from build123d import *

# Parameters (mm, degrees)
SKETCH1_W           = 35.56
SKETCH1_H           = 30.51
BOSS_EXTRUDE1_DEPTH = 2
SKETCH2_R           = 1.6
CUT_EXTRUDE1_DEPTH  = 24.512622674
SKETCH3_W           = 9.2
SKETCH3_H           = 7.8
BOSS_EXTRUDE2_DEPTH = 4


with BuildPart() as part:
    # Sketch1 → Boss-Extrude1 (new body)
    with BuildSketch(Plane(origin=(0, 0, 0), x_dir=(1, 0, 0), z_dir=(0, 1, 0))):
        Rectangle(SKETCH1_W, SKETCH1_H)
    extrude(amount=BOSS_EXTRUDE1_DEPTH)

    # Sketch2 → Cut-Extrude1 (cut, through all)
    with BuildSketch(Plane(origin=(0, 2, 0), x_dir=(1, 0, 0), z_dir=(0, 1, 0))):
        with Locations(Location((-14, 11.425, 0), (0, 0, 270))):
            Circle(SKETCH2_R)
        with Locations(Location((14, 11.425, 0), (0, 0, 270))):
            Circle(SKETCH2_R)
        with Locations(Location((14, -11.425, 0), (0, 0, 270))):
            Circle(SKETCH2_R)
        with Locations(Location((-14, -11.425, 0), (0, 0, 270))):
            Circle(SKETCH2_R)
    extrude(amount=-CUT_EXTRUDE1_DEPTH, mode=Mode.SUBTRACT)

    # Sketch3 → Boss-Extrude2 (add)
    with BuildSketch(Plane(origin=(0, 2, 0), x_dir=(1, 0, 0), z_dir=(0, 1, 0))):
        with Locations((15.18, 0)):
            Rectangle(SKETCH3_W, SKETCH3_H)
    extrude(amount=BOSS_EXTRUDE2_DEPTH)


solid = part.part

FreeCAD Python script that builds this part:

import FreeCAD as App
import Part
import Sketcher

V = App.Vector
Q = App.Units.Quantity


def add_polygon(sketch, points):
    """Adds a closed chain of lines whose ends are joined by coincident constraints."""
    first, n = sketch.GeometryCount, len(points)
    for a, b in zip(points, points[1:] + points[:1]):
        sketch.addGeometry(Part.LineSegment(App.Vector(*a, 0), App.Vector(*b, 0)), False)
    for i in range(n):
        sketch.addConstraint(Sketcher.Constraint("Coincident", first + i, 2, first + (i + 1) % n, 1))

doc = App.newDocument("Part")
body = doc.addObject("PartDesign::Body", "Body")

sketch1 = body.newObject("Sketcher::SketchObject", "Sketch")
sketch1.AttachmentSupport = (doc.getObject("XZ_Plane"), [""])
sketch1.MapMode = "FlatFace"
add_polygon(sketch1, [(-17.78, -15.255), (-17.78, 15.255), (17.78, 15.255), (17.78, -15.255)])
sketch1.addConstraint(Sketcher.Constraint("Vertical", 0))
sketch1.addConstraint(Sketcher.Constraint("Horizontal", 1))
sketch1.addConstraint(Sketcher.Constraint("Vertical", 2))
sketch1.addConstraint(Sketcher.Constraint("Horizontal", 3))
sketch1.addConstraint(Sketcher.Constraint("Symmetric", 0, 2, 2, 2, -1, 1))
sketch1.addConstraint(Sketcher.Constraint("DistanceX", 1, 1, 1, 2, Q("35.56 mm")))
sketch1.addConstraint(Sketcher.Constraint("DistanceY", 0, 1, 0, 2, Q("30.51 mm")))
pad1 = body.newObject("PartDesign::Pad", "Pad")
pad1.Profile = sketch1
pad1.Length = 2
pad1.Reversed = True

sketch2 = body.newObject("Sketcher::SketchObject", "Sketch001")
sketch2.AttachmentSupport = (doc.getObject("XZ_Plane"), [""])
sketch2.MapMode = "FlatFace"
sketch2.AttachmentOffset = App.Placement(V(0, 0, -2), App.Rotation())
sketch2.addGeometry(Part.Circle(V(-14, -11.425, 0), V(0, 0, 1), 1.6), False)
sketch2.addGeometry(Part.Circle(V(14, -11.425, 0), V(0, 0, 1), 1.6), False)
sketch2.addGeometry(Part.Circle(V(14, 11.425, 0), V(0, 0, 1), 1.6), False)
sketch2.addGeometry(Part.Circle(V(-14, 11.425, 0), V(0, 0, 1), 1.6), False)
sketch2.addConstraint(Sketcher.Constraint("Equal", 0, 1))
sketch2.addConstraint(Sketcher.Constraint("Equal", 1, 2))
sketch2.addConstraint(Sketcher.Constraint("Equal", 2, 3))
sketch2.addConstraint(Sketcher.Constraint("Symmetric", 0, 3, 2, 3, -1, 1))
sketch2.addConstraint(Sketcher.Constraint("Symmetric", 1, 3, 3, 3, -1, 1))
sketch2.addConstraint(Sketcher.Constraint("Symmetric", 0, 3, 1, 3, -2))
sketch2.addConstraint(Sketcher.Constraint("Diameter", 0, Q("3.2 mm")))
sketch2.addConstraint(Sketcher.Constraint("DistanceX", 0, 3, -1, 1, Q("14 mm")))
sketch2.addConstraint(Sketcher.Constraint("DistanceY", 1, 3, 2, 3, Q("22.85 mm")))
pocket1 = body.newObject("PartDesign::Pocket", "Pocket")
pocket1.Profile = sketch2
pocket1.Type = "ThroughAll"
pocket1.Reversed = True

sketch3 = body.newObject("Sketcher::SketchObject", "Sketch002")
sketch3.AttachmentSupport = (doc.getObject("XZ_Plane"), [""])
sketch3.MapMode = "FlatFace"
sketch3.AttachmentOffset = App.Placement(V(0, 0, -2), App.Rotation())
add_polygon(sketch3, [(10.58, -3.9), (10.58, 3.9), (19.78, 3.9), (19.78, -3.9)])
sketch3.addConstraint(Sketcher.Constraint("Vertical", 0))
sketch3.addConstraint(Sketcher.Constraint("Horizontal", 1))
sketch3.addConstraint(Sketcher.Constraint("Vertical", 2))
sketch3.addConstraint(Sketcher.Constraint("Horizontal", 3))
sketch3.addConstraint(Sketcher.Constraint("DistanceX", 1, 1, 1, 2, Q("9.2 mm")))
sketch3.addConstraint(Sketcher.Constraint("DistanceY", 0, 1, 0, 2, Q("7.8 mm")))
sketch3.addConstraint(Sketcher.Constraint("DistanceY", -1, 1, 0, 2, Q("3.9 mm")))
sketch3.addConstraint(Sketcher.Constraint("DistanceX", -1, 1, 0, 2, Q("10.58 mm")))
pad2 = body.newObject("PartDesign::Pad", "Pad001")
pad2.Profile = sketch3
pad2.Length = 4
pad2.Reversed = True

doc.recompute()
